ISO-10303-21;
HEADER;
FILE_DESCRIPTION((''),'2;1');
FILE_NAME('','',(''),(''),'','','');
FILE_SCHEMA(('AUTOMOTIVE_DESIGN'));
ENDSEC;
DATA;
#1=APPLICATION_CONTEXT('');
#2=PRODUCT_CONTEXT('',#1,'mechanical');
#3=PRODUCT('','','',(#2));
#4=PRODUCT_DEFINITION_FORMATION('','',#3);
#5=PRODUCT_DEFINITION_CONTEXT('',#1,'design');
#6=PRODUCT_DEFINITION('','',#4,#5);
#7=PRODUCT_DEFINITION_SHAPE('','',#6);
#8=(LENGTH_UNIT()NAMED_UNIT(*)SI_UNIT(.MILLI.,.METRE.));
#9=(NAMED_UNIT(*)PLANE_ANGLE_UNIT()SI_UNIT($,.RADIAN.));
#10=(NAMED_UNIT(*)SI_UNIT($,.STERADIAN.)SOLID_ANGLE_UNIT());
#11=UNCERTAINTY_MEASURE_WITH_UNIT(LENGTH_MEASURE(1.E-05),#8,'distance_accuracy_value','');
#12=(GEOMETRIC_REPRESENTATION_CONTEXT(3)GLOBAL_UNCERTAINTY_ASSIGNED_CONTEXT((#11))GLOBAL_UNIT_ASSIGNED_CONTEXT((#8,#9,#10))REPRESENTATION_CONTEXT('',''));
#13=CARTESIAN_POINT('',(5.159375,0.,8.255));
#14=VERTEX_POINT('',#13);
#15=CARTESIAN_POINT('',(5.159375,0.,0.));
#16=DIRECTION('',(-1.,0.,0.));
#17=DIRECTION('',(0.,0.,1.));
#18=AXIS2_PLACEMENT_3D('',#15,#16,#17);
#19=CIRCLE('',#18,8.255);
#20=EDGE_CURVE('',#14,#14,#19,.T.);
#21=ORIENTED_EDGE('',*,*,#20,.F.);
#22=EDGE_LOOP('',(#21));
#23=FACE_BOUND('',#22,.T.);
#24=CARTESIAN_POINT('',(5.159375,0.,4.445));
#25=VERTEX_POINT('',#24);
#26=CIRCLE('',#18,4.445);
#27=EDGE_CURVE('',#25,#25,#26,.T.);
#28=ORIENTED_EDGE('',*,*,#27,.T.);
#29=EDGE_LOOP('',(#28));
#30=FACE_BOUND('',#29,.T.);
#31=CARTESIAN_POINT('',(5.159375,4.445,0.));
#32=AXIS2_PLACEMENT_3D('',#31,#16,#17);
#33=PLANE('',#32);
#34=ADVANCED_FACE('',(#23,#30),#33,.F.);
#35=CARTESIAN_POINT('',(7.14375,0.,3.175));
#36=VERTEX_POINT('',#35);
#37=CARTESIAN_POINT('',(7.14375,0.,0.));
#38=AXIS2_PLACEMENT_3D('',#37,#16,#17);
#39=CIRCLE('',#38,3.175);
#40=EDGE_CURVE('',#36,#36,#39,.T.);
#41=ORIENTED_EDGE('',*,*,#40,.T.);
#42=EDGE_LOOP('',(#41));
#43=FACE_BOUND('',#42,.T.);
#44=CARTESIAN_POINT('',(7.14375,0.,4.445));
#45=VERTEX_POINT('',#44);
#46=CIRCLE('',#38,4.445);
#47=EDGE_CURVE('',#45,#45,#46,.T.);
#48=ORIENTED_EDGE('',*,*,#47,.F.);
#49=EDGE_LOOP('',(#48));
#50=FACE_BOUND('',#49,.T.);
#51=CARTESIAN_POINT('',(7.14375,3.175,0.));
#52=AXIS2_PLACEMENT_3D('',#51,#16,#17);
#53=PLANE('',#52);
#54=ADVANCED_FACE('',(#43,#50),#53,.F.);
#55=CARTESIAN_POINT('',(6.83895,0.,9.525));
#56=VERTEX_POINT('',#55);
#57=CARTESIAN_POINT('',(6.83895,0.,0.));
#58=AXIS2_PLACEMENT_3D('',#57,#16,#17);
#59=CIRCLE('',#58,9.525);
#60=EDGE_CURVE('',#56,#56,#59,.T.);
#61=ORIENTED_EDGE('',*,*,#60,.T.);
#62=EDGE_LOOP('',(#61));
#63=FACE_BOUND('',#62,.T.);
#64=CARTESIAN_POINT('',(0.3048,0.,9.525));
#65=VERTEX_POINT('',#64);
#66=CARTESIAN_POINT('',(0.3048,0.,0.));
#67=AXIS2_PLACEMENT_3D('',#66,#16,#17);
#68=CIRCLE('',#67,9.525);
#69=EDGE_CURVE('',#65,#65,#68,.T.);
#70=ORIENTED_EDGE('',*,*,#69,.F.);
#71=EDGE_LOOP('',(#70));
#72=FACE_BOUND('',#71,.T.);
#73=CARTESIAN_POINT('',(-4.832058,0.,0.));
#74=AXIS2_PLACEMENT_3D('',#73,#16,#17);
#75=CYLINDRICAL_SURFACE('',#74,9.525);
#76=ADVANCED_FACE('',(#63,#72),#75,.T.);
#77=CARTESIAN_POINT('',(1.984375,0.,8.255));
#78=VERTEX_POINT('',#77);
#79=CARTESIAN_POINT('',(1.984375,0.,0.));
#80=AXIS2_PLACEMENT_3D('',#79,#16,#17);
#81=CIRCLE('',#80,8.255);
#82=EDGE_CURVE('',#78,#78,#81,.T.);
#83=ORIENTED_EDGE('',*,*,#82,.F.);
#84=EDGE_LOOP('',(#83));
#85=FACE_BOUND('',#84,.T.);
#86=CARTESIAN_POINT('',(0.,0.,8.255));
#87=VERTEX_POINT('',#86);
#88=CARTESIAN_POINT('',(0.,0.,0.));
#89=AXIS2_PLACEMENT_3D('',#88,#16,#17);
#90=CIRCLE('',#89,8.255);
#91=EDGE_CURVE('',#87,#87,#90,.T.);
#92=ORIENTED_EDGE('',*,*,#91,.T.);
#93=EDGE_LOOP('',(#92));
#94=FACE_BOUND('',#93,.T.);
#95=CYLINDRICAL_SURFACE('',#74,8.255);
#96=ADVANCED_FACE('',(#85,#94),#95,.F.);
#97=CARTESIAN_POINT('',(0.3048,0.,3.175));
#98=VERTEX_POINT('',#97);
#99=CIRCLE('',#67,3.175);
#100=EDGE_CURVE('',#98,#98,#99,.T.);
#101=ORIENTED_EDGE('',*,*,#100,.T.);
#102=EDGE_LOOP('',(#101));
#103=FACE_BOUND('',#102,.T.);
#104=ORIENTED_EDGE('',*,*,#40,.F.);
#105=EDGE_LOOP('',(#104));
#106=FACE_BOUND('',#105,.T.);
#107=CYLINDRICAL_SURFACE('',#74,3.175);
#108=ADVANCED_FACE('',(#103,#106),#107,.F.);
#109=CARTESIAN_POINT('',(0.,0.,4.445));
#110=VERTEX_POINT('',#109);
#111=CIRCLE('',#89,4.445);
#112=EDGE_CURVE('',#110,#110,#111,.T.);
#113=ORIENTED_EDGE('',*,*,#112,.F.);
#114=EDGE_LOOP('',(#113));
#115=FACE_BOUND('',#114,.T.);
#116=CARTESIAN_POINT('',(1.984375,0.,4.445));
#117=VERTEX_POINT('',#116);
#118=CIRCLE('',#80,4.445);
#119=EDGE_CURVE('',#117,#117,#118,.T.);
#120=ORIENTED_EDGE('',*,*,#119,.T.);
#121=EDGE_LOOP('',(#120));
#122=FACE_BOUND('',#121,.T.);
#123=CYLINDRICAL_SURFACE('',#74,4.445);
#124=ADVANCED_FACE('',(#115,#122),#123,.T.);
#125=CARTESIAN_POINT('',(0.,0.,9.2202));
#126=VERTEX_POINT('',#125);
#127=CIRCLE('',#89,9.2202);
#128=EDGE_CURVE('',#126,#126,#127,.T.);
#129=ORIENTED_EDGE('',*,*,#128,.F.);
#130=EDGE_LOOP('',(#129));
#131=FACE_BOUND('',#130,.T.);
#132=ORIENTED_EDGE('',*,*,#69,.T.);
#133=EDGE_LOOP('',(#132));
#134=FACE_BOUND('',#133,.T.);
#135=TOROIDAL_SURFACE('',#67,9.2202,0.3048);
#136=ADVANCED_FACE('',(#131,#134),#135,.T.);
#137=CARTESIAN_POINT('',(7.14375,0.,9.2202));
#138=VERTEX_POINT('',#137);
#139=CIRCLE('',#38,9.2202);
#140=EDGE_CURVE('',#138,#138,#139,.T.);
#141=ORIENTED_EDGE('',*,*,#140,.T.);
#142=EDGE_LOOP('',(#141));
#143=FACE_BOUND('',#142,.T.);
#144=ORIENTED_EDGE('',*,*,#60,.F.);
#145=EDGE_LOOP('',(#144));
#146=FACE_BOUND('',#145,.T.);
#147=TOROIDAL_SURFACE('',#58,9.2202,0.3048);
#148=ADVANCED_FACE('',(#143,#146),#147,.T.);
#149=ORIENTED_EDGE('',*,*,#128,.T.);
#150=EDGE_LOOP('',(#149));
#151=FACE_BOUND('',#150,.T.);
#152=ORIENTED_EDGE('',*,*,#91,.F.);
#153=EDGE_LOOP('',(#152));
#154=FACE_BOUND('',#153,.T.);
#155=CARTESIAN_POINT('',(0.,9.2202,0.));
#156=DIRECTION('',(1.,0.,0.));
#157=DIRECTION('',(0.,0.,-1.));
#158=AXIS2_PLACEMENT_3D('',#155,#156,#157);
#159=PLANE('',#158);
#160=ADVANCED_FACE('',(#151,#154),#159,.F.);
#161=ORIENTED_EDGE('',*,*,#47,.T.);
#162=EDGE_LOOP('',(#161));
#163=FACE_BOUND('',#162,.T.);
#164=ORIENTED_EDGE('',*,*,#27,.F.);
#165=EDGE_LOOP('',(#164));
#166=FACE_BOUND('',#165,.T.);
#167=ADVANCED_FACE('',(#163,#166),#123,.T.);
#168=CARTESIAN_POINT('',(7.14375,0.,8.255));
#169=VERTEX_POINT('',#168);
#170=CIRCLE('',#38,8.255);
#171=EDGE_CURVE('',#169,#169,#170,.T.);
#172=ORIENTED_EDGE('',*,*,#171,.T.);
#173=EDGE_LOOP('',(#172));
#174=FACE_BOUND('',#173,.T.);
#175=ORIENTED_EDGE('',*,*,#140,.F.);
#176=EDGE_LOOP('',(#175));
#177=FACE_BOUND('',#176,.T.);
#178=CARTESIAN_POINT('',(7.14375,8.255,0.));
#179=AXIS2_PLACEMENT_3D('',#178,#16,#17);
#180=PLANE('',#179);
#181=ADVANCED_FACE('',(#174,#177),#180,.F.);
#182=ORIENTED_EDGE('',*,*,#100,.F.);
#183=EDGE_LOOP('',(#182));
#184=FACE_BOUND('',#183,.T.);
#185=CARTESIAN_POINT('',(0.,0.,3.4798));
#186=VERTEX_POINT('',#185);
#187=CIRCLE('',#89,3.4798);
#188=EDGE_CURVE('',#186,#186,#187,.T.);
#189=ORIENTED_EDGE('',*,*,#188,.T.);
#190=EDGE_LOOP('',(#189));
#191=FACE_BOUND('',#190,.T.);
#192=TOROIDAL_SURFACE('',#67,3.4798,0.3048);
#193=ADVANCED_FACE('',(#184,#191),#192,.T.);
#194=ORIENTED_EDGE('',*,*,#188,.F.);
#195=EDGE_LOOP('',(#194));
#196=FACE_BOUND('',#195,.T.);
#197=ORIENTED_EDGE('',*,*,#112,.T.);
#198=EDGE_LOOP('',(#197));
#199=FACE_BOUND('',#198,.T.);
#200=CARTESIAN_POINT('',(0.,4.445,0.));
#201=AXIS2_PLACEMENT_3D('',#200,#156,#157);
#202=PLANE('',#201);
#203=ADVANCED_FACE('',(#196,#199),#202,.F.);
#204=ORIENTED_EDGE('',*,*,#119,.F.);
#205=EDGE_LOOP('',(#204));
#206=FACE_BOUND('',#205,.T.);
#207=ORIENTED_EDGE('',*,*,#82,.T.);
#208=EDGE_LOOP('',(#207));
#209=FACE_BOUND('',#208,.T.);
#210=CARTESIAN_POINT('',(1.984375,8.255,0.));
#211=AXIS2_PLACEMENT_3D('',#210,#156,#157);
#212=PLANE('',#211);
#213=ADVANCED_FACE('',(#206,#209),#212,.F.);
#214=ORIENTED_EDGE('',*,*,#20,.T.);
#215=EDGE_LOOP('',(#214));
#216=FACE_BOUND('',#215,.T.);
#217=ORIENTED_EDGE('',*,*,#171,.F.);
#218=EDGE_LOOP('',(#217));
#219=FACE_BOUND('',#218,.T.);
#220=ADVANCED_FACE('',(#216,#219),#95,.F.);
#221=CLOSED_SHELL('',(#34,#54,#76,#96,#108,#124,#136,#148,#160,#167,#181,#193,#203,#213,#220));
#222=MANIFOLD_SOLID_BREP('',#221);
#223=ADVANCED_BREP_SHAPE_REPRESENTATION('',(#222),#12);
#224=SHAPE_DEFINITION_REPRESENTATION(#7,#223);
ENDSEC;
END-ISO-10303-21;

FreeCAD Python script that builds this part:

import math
import FreeCAD as App
import Part
import Sketcher

V = App.Vector
Q = App.Units.Quantity

doc = App.newDocument("Part")
body = doc.addObject("PartDesign::Body", "Body")

sketch1 = body.newObject("Sketcher::SketchObject", "Sketch")
sketch1.AttachmentSupport = (doc.getObject("XY_Plane"), [""])
sketch1.MapMode = "FlatFace"
sketch1.addGeometry([
    Part.LineSegment(V(0.3048, 3.175, 0), V(7.14375, 3.175, 0)),
    Part.LineSegment(V(7.14375, 3.175, 0), V(7.14375, 4.445, 0)),
    Part.LineSegment(V(7.14375, 4.445, 0), V(5.159375, 4.445, 0)),
    Part.LineSegment(V(5.159375, 4.445, 0), V(5.159375, 8.255, 0)),
    Part.LineSegment(V(5.159375, 8.255, 0), V(7.14375, 8.255, 0)),
    Part.LineSegment(V(7.14375, 8.255, 0), V(7.14375, 9.2202, 0)),
    Part.ArcOfCircle(Part.Circle(V(6.83895, 9.2202, 0), V(0, 0, 1), 0.3048), math.radians(0), math.radians(90)),
    Part.LineSegment(V(6.83895, 9.525, 0), V(0.3048, 9.525, 0)),
    Part.ArcOfCircle(Part.Circle(V(0.3048, 9.2202, 0), V(0, 0, 1), 0.3048), math.radians(90), math.radians(180)),
    Part.LineSegment(V(0, 9.2202, 0), V(0, 8.255, 0)),
    Part.LineSegment(V(0, 8.255, 0), V(1.984375, 8.255, 0)),
    Part.LineSegment(V(1.984375, 8.255, 0), V(1.984375, 4.445, 0)),
    Part.LineSegment(V(1.984375, 4.445, 0), V(0, 4.445, 0)),
    Part.LineSegment(V(0, 4.445, 0), V(0, 3.4798, 0)),
    Part.ArcOfCircle(Part.Circle(V(0.3048, 3.4798, 0), V(0, 0, 1), 0.3048), math.radians(180), math.radians(270)),
], False)
sketch1.addConstraint([
    Sketcher.Constraint("Coincident", 0, 2, 1, 1),
    Sketcher.Constraint("Coincident", 1, 2, 2, 1),
    Sketcher.Constraint("Coincident", 2, 2, 3, 1),
    Sketcher.Constraint("Coincident", 3, 2, 4, 1),
    Sketcher.Constraint("Coincident", 4, 2, 5, 1),
    Sketcher.Constraint("Tangent", 5, 2, 6, 1),
    Sketcher.Constraint("Tangent", 6, 2, 7, 1),
    Sketcher.Constraint("Tangent", 7, 2, 8, 1),
    Sketcher.Constraint("Tangent", 8, 2, 9, 1),
    Sketcher.Constraint("Coincident", 9, 2, 10, 1),
    Sketcher.Constraint("Coincident", 10, 2, 11, 1),
    Sketcher.Constraint("Coincident", 11, 2, 12, 1),
    Sketcher.Constraint("Coincident", 12, 2, 13, 1),
    Sketcher.Constraint("Tangent", 13, 2, 14, 1),
    Sketcher.Constraint("Tangent", 14, 2, 0, 1),
    Sketcher.Constraint("Horizontal", 0),
    Sketcher.Constraint("Vertical", 1),
    Sketcher.Constraint("Horizontal", 2),
    Sketcher.Constraint("Vertical", 3),
    Sketcher.Constraint("Horizontal", 4),
    Sketcher.Constraint("Vertical", 5),
    Sketcher.Constraint("Horizontal", 7),
    Sketcher.Constraint("Vertical", 9),
    Sketcher.Constraint("Horizontal", 10),
    Sketcher.Constraint("Vertical", 11),
    Sketcher.Constraint("Horizontal", 12),
    Sketcher.Constraint("Vertical", 13),
    Sketcher.Constraint("Equal", 6, 8),
    Sketcher.Constraint("Equal", 8, 14),
    Sketcher.Constraint("PointOnObject", 8, 2, -2),
    Sketcher.Constraint("PointOnObject", 12, 2, -2),
    Sketcher.Constraint("Horizontal", 4, 2, 9, 2),
    Sketcher.Constraint("Horizontal", 2, 2, 11, 2),
    Sketcher.Constraint("Vertical", 1, 2, 4, 2),
    Sketcher.Constraint("Equal", 4, 10),
    Sketcher.Constraint("Equal", 9, 13),
    Sketcher.Constraint("Radius", 6, Q("0.012 in")),
    Sketcher.Constraint("DistanceY", 1, 1, 1, 2, Q("0.05 in")),
    Sketcher.Constraint("DistanceY", 3, 1, 3, 2, Q("0.15 in")),
    Sketcher.Constraint("DistanceX", 2, 2, 2, 1, Q("0.078125 in")),
    Sketcher.Constraint("DistanceY", -1, 1, 6, 3, Q("0.363 in")),
    Sketcher.Constraint("DistanceX", -1, 1, 0, 2, Q("0.28125 in")),
])
revolution = body.newObject("PartDesign::Revolution", "Revolution")
revolution.Profile = sketch1
revolution.ReferenceAxis = (sketch1, ["H_Axis"])
revolution.Angle = 360

doc.recompute()
